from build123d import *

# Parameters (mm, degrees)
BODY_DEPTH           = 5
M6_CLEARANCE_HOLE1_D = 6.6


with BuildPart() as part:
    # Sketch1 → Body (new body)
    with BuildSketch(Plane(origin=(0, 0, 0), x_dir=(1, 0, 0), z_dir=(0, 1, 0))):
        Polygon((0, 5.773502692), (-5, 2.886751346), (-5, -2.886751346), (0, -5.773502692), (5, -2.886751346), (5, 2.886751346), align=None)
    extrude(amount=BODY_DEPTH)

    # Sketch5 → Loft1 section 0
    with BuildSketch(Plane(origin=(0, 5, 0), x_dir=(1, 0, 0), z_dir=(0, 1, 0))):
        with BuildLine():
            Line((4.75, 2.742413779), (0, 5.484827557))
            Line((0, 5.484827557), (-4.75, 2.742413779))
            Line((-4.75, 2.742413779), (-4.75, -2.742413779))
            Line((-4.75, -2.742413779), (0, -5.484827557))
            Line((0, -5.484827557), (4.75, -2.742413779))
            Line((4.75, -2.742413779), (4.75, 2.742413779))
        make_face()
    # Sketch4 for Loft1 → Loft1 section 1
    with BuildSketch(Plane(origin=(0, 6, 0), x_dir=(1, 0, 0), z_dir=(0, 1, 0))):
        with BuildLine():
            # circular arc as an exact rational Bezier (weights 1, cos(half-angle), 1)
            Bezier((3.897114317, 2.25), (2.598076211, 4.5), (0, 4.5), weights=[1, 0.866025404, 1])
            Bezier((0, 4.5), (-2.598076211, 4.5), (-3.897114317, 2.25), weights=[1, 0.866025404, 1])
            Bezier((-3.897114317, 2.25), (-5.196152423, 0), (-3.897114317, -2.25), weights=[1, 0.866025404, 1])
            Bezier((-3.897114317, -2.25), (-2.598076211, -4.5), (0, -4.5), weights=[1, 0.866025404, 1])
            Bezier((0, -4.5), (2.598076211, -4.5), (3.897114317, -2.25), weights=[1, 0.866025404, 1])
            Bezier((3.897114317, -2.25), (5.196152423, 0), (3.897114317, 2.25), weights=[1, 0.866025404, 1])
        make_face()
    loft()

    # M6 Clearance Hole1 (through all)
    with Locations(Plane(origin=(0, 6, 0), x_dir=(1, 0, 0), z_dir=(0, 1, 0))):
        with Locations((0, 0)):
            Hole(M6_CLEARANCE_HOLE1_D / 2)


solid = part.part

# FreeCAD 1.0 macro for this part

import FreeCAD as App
import Part
import Sketcher

V = App.Vector
Q = App.Units.Quantity

doc = App.newDocument("Part")
body = doc.addObject("PartDesign::Body", "Body")

sketch1 = body.newObject("Sketcher::SketchObject", "Sketch")
sketch1.AttachmentSupport = (doc.getObject("XZ_Plane"), [""])
sketch1.MapMode = "FlatFace"
sketch1.addGeometry([
    Part.LineSegment(V(0, -5.773503, 0), V(-5, -2.886751, 0)),
    Part.LineSegment(V(-5, -2.886751, 0), V(-5, 2.886751, 0)),
    Part.LineSegment(V(-5, 2.886751, 0), V(0, 5.773503, 0)),
    Part.LineSegment(V(0, 5.773503, 0), V(5, 2.886751, 0)),
    Part.LineSegment(V(5, 2.886751, 0), V(5, -2.886751, 0)),
    Part.LineSegment(V(5, -2.886751, 0), V(0, -5.773503, 0)),
], False)
sketch1.addConstraint([
    Sketcher.Constraint("Coincident", 0, 2, 1, 1),
    Sketcher.Constraint("Coincident", 1, 2, 2, 1),
    Sketcher.Constraint("Coincident", 2, 2, 3, 1),
    Sketcher.Constraint("Coincident", 3, 2, 4, 1),
    Sketcher.Constraint("Coincident", 4, 2, 5, 1),
    Sketcher.Constraint("Coincident", 5, 2, 0, 1),
    Sketcher.Constraint("Vertical", 1),
    Sketcher.Constraint("Vertical", 4),
    Sketcher.Constraint("Symmetric", 0, 2, 3, 2, -1, 1),
    Sketcher.Constraint("Symmetric", 2, 2, 5, 2, -1, 1),
    Sketcher.Constraint("PointOnObject", 2, 2, -2),
    Sketcher.Constraint("Parallel", 2, 5),
    Sketcher.Constraint("Horizontal", 1, 2, 3, 2),
    Sketcher.Constraint("Angle", 0, Q("150 deg")),
    Sketcher.Constraint("DistanceX", 0, 2, -1, 1, 5.0),
    Sketcher.Constraint("DistanceY", 1, 1, 1, 2, 5.773503),
])
pad1 = body.newObject("PartDesign::Pad", "Pad")
pad1.Profile = sketch1
pad1.Length = 5
pad1.Reversed = True

sketch2 = body.newObject("Sketcher::SketchObject", "Sketch001")
sketch2.AttachmentSupport = (doc.getObject("XZ_Plane"), [""])
sketch2.MapMode = "FlatFace"
sketch2.AttachmentOffset = App.Placement(V(0, 0, -5), App.Rotation())
sketch2.addGeometry([
    Part.LineSegment(V(4.75, -2.742414, 0), V(0, -5.484828, 0)),
    Part.LineSegment(V(0, -5.484828, 0), V(-4.75, -2.742414, 0)),
    Part.LineSegment(V(-4.75, -2.742414, 0), V(-4.75, 2.742414, 0)),
    Part.LineSegment(V(-4.75, 2.742414, 0), V(0, 5.484828, 0)),
    Part.LineSegment(V(0, 5.484828, 0), V(4.75, 2.742414, 0)),
    Part.LineSegment(V(4.75, 2.742414, 0), V(4.75, -2.742414, 0)),
], False)
sketch2.addConstraint([
    Sketcher.Constraint("Coincident", 0, 2, 1, 1),
    Sketcher.Constraint("Coincident", 1, 2, 2, 1),
    Sketcher.Constraint("Coincident", 2, 2, 3, 1),
    Sketcher.Constraint("Coincident", 3, 2, 4, 1),
    Sketcher.Constraint("Coincident", 4, 2, 5, 1),
    Sketcher.Constraint("Coincident", 5, 2, 0, 1),
    Sketcher.Constraint("Vertical", 2),
    Sketcher.Constraint("Vertical", 5),
    Sketcher.Constraint("Symmetric", 0, 2, 3, 2, -1, 1),
    Sketcher.Constraint("Symmetric", 1, 2, 4, 2, -1, 1),
    Sketcher.Constraint("PointOnObject", 0, 2, -2),
    Sketcher.Constraint("Parallel", 0, 3),
    Sketcher.Constraint("Horizontal", 2, 2, 4, 2),
    Sketcher.Constraint("Angle", 0, Q("-150 deg")),
    Sketcher.Constraint("DistanceX", 2, 2, 4, 2, 9.5),
    Sketcher.Constraint("DistanceY", 2, 1, 2, 2, 5.484828),
])

sketch3 = body.newObject("Sketcher::SketchObject", "Sketch002")
sketch3.AttachmentSupport = (doc.getObject("XZ_Plane"), [""])
sketch3.MapMode = "FlatFace"
sketch3.AttachmentOffset = App.Placement(V(0, 0, -6), App.Rotation())
sketch3.addGeometry(Part.BSplineCurve([V(3.897114, 2.25, 0), V(4.347114, 1.470577, 0), V(4.63772, 0.513979, 0), V(4.63772, -0.513979, 0), V(4.347114, -1.470577, 0), V(3.447114, -3.029423, 0), V(2.763979, -3.759394, 0), V(1.873741, -4.273373, 0), V(0.9, -4.5, 0), V(-0.9, -4.5, 0), V(-1.873741, -4.273373, 0), V(-2.763979, -3.759394, 0), V(-3.447114, -3.029423, 0), V(-4.347114, -1.470577, 0), V(-4.63772, -0.513979, 0), V(-4.63772, 0.513979, 0), V(-4.347114, 1.470577, 0), V(-3.447114, 3.029423, 0), V(-2.763979, 3.759394, 0), V(-1.873741, 4.273373, 0), V(-0.9, 4.5, 0), V(0.9, 4.5, 0), V(1.873741, 4.273373, 0), V(2.763979, 3.759394, 0), V(3.447114, 3.029423, 0), V(3.897114, 2.25, 0)], [6, 4, 4, 4, 4, 4, 6], [0, 1, 2, 3, 4, 5, 6], False, 5, [1, 1, 0.992820323, 0.992820323, 1, 1, 0.992820323, 0.992820323, 1, 1, 0.992820323, 0.992820323, 1, 1, 0.992820323, 0.992820323, 1, 1, 0.992820323, 0.992820323, 1, 1, 0.992820323, 0.992820323, 1, 1], False), False)
sketch3.addConstraint(Sketcher.Constraint("Block", 0))

additiveloft = body.newObject("PartDesign::AdditiveLoft", "AdditiveLoft")
additiveloft.Profile = sketch2
additiveloft.Sections = [sketch3]

sketch4 = body.newObject("Sketcher::SketchObject", "Sketch003")
sketch4.AttachmentSupport = (doc.getObject("XZ_Plane"), [""])
sketch4.MapMode = "FlatFace"
sketch4.AttachmentOffset = App.Placement(V(0, 0, -6), App.Rotation())
sketch4.addGeometry(Part.Circle(V(0, 0, 0), V(0, 0, 1), 3.3), False)
sketch4.addConstraint([
    Sketcher.Constraint("Coincident", 0, 3, -1, 1),
    Sketcher.Constraint("Diameter", 0, 6.6),
])
doc.recompute()
hole = body.newObject("PartDesign::Hole", "Hole")
hole.Profile = sketch4
hole.ThreadType = "None"
hole.Diameter = 6.6
hole.DepthType = "ThroughAll"
hole.Reversed = True

doc.recompute()
